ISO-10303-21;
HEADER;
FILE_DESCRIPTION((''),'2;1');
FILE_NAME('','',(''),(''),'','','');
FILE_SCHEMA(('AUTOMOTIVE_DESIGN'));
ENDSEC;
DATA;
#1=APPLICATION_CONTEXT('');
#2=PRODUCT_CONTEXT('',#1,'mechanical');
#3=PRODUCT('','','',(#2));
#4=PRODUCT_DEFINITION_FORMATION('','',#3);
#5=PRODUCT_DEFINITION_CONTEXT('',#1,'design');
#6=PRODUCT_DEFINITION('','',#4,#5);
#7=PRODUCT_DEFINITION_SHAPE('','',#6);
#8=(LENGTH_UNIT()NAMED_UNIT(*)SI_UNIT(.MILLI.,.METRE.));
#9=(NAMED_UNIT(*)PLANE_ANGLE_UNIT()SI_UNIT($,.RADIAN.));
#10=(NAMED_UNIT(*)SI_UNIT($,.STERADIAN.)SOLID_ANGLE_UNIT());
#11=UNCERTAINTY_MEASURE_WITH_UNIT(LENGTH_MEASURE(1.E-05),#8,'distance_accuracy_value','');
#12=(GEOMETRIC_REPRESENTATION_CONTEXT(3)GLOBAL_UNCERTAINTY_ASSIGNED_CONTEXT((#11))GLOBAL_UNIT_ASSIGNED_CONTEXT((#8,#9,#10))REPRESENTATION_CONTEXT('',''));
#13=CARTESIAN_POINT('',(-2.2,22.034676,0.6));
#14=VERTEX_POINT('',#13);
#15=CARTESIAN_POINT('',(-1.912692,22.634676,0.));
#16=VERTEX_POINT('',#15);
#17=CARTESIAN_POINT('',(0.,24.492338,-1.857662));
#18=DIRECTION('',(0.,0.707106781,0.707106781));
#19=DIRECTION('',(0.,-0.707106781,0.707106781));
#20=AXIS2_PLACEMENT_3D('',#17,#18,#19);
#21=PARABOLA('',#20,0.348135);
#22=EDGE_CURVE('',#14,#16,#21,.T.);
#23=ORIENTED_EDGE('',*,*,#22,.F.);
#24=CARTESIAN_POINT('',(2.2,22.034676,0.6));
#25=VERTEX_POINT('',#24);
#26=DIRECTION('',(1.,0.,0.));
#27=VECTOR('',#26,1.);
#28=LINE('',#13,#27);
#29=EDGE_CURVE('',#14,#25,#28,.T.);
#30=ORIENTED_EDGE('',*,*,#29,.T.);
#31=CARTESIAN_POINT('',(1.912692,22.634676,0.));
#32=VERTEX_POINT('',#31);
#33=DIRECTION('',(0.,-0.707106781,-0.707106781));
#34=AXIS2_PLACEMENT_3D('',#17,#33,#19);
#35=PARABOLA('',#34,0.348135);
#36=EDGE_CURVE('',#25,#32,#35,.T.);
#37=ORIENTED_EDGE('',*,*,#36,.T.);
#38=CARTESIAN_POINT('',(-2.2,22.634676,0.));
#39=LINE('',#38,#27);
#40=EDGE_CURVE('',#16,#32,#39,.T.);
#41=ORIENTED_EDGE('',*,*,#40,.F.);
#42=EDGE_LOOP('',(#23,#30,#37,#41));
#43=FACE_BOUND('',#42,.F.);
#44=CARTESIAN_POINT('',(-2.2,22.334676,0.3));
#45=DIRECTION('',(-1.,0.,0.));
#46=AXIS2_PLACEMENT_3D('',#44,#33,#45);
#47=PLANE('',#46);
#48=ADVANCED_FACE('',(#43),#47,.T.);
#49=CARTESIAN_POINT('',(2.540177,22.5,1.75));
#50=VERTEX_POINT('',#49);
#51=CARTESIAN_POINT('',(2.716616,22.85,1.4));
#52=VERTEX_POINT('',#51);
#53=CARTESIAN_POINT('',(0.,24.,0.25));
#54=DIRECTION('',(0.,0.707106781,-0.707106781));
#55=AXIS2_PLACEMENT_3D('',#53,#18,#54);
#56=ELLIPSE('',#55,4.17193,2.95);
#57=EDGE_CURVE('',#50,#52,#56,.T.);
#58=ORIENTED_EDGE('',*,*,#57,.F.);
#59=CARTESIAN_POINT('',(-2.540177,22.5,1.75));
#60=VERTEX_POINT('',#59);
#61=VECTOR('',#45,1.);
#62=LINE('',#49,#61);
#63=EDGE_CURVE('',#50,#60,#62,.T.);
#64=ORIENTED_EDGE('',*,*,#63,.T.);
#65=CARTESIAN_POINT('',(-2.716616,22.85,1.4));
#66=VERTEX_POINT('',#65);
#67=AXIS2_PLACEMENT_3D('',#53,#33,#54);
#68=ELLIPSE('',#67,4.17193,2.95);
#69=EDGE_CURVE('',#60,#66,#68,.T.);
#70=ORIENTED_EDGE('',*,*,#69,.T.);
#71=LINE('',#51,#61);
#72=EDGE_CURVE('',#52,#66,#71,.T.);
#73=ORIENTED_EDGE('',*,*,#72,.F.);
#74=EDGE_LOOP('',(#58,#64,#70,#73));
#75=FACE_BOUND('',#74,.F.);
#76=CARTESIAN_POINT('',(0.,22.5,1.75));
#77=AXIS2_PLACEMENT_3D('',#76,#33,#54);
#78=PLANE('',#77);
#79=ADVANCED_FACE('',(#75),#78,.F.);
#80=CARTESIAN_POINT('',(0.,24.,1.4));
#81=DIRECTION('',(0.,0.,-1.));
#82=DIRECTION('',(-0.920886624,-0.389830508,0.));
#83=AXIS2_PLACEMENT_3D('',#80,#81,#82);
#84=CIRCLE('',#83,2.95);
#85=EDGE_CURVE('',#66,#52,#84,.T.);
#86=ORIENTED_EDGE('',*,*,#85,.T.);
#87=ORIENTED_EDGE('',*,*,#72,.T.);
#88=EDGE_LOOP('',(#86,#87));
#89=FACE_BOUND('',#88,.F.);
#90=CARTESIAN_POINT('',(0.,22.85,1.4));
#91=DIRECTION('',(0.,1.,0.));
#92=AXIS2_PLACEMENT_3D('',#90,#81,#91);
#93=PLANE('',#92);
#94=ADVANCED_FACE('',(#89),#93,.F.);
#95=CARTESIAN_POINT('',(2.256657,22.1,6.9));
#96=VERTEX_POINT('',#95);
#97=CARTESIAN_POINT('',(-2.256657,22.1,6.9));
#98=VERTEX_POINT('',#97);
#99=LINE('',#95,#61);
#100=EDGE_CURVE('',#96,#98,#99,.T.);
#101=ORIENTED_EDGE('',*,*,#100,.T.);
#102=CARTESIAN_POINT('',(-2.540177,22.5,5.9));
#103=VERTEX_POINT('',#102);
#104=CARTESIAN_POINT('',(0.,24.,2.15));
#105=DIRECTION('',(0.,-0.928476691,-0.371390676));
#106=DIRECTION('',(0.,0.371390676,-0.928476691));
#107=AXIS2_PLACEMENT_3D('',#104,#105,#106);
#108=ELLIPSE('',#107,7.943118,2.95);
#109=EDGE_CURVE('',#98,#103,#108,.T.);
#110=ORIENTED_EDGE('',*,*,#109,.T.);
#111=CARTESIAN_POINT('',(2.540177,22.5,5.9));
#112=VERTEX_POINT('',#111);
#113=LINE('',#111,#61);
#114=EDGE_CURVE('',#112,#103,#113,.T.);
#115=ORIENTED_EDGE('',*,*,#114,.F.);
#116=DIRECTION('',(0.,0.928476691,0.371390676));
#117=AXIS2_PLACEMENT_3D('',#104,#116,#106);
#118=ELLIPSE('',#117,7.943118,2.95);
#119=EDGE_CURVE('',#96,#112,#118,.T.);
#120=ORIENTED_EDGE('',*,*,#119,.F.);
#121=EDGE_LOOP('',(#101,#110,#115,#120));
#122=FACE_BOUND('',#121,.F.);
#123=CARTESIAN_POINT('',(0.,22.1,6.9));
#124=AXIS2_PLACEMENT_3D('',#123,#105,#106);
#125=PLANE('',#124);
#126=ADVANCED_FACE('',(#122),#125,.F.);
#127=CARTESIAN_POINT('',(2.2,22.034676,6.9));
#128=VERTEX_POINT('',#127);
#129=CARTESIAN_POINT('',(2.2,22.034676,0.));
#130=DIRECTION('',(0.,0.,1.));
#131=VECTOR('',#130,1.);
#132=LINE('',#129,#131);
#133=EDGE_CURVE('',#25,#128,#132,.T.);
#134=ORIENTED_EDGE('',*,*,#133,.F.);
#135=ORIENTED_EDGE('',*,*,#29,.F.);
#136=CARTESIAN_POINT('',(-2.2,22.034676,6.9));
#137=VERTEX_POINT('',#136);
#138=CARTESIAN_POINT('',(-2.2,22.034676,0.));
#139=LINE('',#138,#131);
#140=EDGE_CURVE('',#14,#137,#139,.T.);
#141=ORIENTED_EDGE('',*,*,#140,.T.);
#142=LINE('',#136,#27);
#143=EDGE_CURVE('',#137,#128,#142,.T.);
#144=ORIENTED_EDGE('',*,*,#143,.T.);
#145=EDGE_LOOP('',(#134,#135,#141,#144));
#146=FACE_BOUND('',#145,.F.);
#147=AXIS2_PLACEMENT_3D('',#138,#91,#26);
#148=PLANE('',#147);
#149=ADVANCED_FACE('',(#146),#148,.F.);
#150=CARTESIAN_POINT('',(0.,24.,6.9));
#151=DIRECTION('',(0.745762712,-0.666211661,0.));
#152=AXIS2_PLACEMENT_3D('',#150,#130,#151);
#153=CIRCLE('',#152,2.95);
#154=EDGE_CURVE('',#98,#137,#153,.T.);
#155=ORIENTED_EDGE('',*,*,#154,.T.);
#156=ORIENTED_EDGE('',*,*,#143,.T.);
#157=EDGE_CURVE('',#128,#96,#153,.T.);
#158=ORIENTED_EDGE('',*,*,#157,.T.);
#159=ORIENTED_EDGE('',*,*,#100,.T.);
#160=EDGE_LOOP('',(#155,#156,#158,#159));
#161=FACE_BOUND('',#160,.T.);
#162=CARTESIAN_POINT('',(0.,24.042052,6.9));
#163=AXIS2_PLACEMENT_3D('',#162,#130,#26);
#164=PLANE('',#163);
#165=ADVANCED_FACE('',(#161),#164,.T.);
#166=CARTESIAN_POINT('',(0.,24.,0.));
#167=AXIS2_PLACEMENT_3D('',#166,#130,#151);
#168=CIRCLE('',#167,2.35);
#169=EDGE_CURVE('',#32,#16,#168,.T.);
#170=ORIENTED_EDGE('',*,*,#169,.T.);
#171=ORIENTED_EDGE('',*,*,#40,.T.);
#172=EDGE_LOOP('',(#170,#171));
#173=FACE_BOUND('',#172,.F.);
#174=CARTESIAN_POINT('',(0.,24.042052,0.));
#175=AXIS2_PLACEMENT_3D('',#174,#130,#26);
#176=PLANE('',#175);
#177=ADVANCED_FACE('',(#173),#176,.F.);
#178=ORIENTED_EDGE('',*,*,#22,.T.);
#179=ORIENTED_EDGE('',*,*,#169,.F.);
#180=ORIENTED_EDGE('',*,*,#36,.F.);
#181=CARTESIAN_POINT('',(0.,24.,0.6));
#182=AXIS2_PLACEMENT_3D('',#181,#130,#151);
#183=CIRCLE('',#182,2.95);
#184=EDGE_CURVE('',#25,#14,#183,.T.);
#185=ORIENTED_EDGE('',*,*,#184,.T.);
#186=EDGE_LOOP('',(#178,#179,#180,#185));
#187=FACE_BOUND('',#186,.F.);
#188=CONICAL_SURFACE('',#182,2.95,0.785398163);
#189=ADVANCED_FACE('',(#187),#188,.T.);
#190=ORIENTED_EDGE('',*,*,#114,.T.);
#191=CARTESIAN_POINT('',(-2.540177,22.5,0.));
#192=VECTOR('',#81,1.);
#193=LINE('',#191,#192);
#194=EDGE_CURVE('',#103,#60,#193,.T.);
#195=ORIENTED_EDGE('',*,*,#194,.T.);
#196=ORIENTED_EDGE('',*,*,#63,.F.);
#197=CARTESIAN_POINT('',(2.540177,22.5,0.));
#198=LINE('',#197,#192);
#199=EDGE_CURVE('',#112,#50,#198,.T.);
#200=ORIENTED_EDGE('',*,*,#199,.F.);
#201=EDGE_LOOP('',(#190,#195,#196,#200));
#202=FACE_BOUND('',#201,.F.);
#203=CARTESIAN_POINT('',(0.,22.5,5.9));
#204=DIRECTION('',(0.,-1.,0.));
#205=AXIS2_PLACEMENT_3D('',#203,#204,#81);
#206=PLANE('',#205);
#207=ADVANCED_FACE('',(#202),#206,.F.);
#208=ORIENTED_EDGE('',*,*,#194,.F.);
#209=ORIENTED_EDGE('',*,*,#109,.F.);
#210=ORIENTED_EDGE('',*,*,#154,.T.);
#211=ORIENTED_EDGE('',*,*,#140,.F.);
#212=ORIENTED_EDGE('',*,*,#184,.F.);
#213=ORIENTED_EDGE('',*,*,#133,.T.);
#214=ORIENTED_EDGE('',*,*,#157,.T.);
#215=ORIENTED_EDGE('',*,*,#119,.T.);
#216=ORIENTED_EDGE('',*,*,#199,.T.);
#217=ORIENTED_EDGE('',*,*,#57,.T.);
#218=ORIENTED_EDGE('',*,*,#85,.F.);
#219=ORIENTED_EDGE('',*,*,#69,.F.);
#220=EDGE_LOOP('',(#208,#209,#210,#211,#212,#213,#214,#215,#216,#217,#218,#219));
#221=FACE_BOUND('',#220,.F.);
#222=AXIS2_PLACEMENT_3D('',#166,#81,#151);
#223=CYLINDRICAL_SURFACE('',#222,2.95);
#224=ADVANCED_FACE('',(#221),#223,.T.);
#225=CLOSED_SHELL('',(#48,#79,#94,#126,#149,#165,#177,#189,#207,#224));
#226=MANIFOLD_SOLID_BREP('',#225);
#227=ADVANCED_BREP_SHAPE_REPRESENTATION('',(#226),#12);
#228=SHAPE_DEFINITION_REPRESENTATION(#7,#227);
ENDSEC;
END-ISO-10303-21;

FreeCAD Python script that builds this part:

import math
import FreeCAD as App
import Part
import Sketcher
Q = App.Units.Quantity


def edges_at(feature, points):
    """Names of the edges that pass closest to the given points."""
    edges = feature.Shape.Edges
    near = lambda p: min(range(len(edges)), key=lambda i: edges[i].distToShape(Part.Vertex(*p))[0])
    return sorted({f"Edge{near(p) + 1}" for p in points})


def add_polygon(sketch, points):
    """Adds a closed chain of lines whose ends are joined by coincident constraints."""
    first, n = sketch.GeometryCount, len(points)
    for a, b in zip(points, points[1:] + points[:1]):
        sketch.addGeometry(Part.LineSegment(App.Vector(*a, 0), App.Vector(*b, 0)), False)
    for i in range(n):
        sketch.addConstraint(Sketcher.Constraint("Coincident", first + i, 2, first + (i + 1) % n, 1))

doc = App.newDocument("Part")
body = doc.addObject("PartDesign::Body", "Body")

# Sketch on XY plane
sketch1 = body.newObject("Sketcher::SketchObject", "Sketch")
sketch1.AttachmentSupport = (doc.getObject("XY_Plane"), [""])
sketch1.MapMode = "FlatFace"
sketch1.addGeometry([
    Part.ArcOfCircle(Part.Circle(App.Vector(0, 0, 0), App.Vector(0, 0, 1), 3), math.radians(-42), math.radians(222)),
    Part.LineSegment(App.Vector(-2.2, -2, 0), App.Vector(2.2, -2, 0)),
], False)
sketch1.addConstraint([
    Sketcher.Constraint("Coincident", 0, 1, 1, 2),
    Sketcher.Constraint("Coincident", 1, 1, 0, 2),
    Sketcher.Constraint("Horizontal", 1),
    Sketcher.Constraint("Coincident", 0, 3, -1, 1),
    Sketcher.Constraint("Radius", 0, 2.95),
    Sketcher.Constraint("DistanceX", 1, 1, 1, 2, 4.4),
])
pad1 = body.newObject("PartDesign::Pad", "Pad")
pad1.Profile = sketch1
pad1.Length = 6.9

# Sketch on YZ plane
sketch2 = body.newObject("Sketcher::SketchObject", "Sketch001")
sketch2.AttachmentSupport = (doc.getObject("YZ_Plane"), [""])
sketch2.MapMode = "FlatFace"
add_polygon(sketch2, [(-1.9, 6.9), (-1.5, 5.9), (-1.5, 1.75), (-1.15, 1.4), (5, 1.4), (5, 6.9)])  # lines 0-5
sketch2.addConstraint([
    Sketcher.Constraint("Vertical", 1),
    Sketcher.Constraint("Horizontal", 3),
    Sketcher.Constraint("Vertical", 4),
    Sketcher.Constraint("Horizontal", 5),
    Sketcher.Constraint("Angle", 2, Q("-45 deg")),
    Sketcher.Constraint("DistanceX", 5, 2, 5, 1, 6.9),
    Sketcher.Constraint("DistanceY", 4, 1, 4, 2, 5.5),
    Sketcher.Constraint("DistanceX", -1, 1, 3, 2, 5.0),
    Sketcher.Constraint("DistanceY", 0, 2, 4, 2, 1.0),
    Sketcher.Constraint("DistanceX", 3, 1, 3, 2, 6.15),
    Sketcher.Constraint("DistanceY", 1, 2, 1, 1, 4.15),
    Sketcher.Constraint("DistanceY", -1, 1, 0, 2, 5.9),
])
pocket1 = body.newObject("PartDesign::Pocket", "Pocket")
pocket1.Profile = sketch2
pocket1.Type = "ThroughAll"
pocket1.Midplane = True
doc.recompute()

chamfer = body.newObject("PartDesign::Chamfer", "Chamfer")
chamfer.Base = (pocket1, edges_at(pocket1, [(0, 2.95, 0), (0, -1.965, 0)]))
chamfer.Size = 0.6
body2 = doc.addObject("PartDesign::Body", "Body001")
doc.recompute()

body.Placement = App.Placement(App.Vector(0, 24, 0), App.Rotation(App.Vector(0, 0, 1), 0))
boolean = body2.newObject("PartDesign::Boolean", "Boolean")
boolean.Type = "Fuse"
boolean.addObjects([body])

doc.recompute()
